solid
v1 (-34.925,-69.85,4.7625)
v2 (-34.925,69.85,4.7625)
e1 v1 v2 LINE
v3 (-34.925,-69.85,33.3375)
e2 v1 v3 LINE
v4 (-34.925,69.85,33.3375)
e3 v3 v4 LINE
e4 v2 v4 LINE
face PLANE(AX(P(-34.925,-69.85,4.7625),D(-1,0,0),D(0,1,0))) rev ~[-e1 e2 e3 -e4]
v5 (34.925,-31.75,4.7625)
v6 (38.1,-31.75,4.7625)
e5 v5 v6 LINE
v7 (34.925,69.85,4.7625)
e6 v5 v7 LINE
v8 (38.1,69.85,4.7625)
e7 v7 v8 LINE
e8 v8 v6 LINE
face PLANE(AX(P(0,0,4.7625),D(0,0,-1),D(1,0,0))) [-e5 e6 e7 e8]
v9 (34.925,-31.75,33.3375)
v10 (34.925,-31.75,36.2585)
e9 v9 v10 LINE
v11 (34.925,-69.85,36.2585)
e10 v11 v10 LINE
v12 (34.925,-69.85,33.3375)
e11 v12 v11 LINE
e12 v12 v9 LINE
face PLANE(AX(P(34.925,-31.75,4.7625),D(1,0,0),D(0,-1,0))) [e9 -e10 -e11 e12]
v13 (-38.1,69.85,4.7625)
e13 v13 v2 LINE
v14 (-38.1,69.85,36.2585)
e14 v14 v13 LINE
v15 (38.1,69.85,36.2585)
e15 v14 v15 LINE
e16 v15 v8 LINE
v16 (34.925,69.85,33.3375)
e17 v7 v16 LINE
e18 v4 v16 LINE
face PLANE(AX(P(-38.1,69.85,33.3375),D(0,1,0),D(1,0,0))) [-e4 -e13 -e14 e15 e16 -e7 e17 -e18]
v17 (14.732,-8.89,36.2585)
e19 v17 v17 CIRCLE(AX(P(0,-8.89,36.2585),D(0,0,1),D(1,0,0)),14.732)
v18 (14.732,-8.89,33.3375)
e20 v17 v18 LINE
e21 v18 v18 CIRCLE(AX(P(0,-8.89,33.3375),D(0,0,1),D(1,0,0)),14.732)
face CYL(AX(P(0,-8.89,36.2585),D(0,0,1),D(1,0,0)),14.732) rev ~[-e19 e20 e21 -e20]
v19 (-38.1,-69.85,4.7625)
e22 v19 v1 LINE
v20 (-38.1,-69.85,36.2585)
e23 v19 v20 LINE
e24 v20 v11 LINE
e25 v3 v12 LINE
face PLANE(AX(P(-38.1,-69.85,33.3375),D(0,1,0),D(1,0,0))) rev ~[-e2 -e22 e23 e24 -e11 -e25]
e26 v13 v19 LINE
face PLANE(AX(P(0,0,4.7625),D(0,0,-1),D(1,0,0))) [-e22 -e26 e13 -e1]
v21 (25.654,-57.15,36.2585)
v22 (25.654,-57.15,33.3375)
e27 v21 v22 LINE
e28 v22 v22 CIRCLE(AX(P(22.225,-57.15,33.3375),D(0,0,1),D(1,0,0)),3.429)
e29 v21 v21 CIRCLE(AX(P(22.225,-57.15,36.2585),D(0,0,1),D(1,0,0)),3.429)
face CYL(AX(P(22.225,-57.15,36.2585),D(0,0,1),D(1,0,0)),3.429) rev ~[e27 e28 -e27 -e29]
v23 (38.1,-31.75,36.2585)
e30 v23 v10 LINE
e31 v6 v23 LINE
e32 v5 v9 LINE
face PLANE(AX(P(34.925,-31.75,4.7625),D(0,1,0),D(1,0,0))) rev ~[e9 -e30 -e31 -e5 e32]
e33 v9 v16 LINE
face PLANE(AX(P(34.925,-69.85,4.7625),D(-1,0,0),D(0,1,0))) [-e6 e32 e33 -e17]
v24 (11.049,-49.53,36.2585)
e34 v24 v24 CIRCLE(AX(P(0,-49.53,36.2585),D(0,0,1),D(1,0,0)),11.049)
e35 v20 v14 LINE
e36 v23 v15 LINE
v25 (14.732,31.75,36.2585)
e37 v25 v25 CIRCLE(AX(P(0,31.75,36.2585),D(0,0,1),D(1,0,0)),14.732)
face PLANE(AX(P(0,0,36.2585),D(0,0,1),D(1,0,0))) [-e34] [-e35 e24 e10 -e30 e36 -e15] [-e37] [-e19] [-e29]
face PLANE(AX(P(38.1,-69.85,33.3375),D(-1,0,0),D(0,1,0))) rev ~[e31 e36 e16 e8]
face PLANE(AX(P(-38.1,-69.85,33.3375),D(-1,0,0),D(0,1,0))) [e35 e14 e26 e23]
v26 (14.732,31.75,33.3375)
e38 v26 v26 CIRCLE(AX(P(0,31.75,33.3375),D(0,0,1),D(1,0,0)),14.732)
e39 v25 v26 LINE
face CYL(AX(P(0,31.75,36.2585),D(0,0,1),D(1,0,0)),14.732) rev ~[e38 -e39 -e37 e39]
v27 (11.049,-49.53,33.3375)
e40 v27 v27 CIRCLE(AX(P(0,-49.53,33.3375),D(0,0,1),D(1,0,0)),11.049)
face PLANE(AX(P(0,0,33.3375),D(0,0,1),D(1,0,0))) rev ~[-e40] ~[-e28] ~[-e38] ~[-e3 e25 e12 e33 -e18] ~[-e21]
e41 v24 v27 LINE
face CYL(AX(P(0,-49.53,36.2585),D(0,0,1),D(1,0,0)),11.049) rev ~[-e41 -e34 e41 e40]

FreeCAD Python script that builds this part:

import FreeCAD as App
import Part
import Sketcher
from FreeCAD import Vector
Q = App.Units.Quantity

doc = App.newDocument("Part")
body = doc.addObject("PartDesign::Body", "Body")

# Sketch on XY plane
sketch1 = doc.addObject("Sketcher::SketchObject", "Sketch")
body.addObject(sketch1)
sketch1.AttachmentSupport = (doc.XY_Plane, [""])
sketch1.MapMode = "FlatFace"
sketch1.addGeometry([
    Part.LineSegment(Vector(-38, 70, 0), Vector(-38, -70, 0)),
    Part.LineSegment(Vector(-38, -70, 0), Vector(38, -70, 0)),
    Part.LineSegment(Vector(38, -70, 0), Vector(38, 70, 0)),
    Part.LineSegment(Vector(38, 70, 0), Vector(-38, 70, 0)),
], False)
sketch1.addConstraint([
    Sketcher.Constraint("Coincident", 0, 2, 1, 1),
    Sketcher.Constraint("Coincident", 1, 2, 2, 1),
    Sketcher.Constraint("Coincident", 2, 2, 3, 1),
    Sketcher.Constraint("Coincident", 3, 2, 0, 1),
    Sketcher.Constraint("Vertical", 0),
    Sketcher.Constraint("Horizontal", 1),
    Sketcher.Constraint("Vertical", 2),
    Sketcher.Constraint("Horizontal", 3),
    Sketcher.Constraint("Symmetric", 0, 2, 2, 2, -1, 1),
    Sketcher.Constraint("DistanceX", 1, 1, 1, 2, Q("3 in")),
    Sketcher.Constraint("DistanceY", 0, 2, 0, 1, Q("5.5 in")),
])
pad1 = doc.addObject("PartDesign::Pad", "Pad")
body.addObject(pad1)
pad1.Profile = sketch1
pad1.Length = Q("0.1875 in")

# Sketch on XY plane
sketch2 = doc.addObject("Sketcher::SketchObject", "Sketch001")
body.addObject(sketch2)
sketch2.AttachmentSupport = (doc.XY_Plane, [""])
sketch2.MapMode = "FlatFace"
sketch2.AttachmentOffset = App.Placement(Vector(0, 0, 0.1875 * 25.4), App.Rotation())
sketch2.addGeometry([
    Part.LineSegment(Vector(-38.1, 69.8, 0), Vector(-38.1, -69.8, 0)),  # 0
    Part.LineSegment(Vector(-38.1, -69.8, 0), Vector(-34.9, -69.8, 0)),  # 1
    Part.LineSegment(Vector(-34.9, -69.8, 0), Vector(-34.9, 69.8, 0)),  # 2
    Part.LineSegment(Vector(-34.9, 69.8, 0), Vector(-38.1, 69.8, 0)),  # 3
    Part.LineSegment(Vector(34.9, 69.8, 0), Vector(34.9, -69.8, 0)),  # 4
    Part.LineSegment(Vector(34.9, -69.8, 0), Vector(38.1, -69.8, 0)),  # 5
    Part.LineSegment(Vector(38.1, -69.8, 0), Vector(38.1, 69.8, 0)),  # 6
    Part.LineSegment(Vector(38.1, 69.8, 0), Vector(34.9, 69.8, 0)),  # 7
], False)
sketch2.addConstraint([
    Sketcher.Constraint("Coincident", 0, 2, 1, 1),
    Sketcher.Constraint("Coincident", 1, 2, 2, 1),
    Sketcher.Constraint("Coincident", 2, 2, 3, 1),
    Sketcher.Constraint("Coincident", 3, 2, 0, 1),
    Sketcher.Constraint("Coincident", 4, 2, 5, 1),
    Sketcher.Constraint("Coincident", 5, 2, 6, 1),
    Sketcher.Constraint("Coincident", 6, 2, 7, 1),
    Sketcher.Constraint("Coincident", 7, 2, 4, 1),
    Sketcher.Constraint("Vertical", 0),
    Sketcher.Constraint("Horizontal", 1),
    Sketcher.Constraint("Vertical", 2),
    Sketcher.Constraint("Horizontal", 3),
    Sketcher.Constraint("Vertical", 4),
    Sketcher.Constraint("Horizontal", 5),
    Sketcher.Constraint("Vertical", 6),
    Sketcher.Constraint("Horizontal", 7),
    Sketcher.Constraint("Symmetric", 2, 2, 4, 2, -1, 1),
    Sketcher.Constraint("Symmetric", 0, 2, 6, 2, -1, 1),
    Sketcher.Constraint("Horizontal", 1, 2, 4, 2),
    Sketcher.Constraint("DistanceY", 0, 2, 0, 1, Q("5.5 in")),
    Sketcher.Constraint("DistanceX", 0, 2, 5, 2, Q("3 in")),
    Sketcher.Constraint("DistanceX", 1, 1, 1, 2, Q("0.125 in")),
])
pad2 = doc.addObject("PartDesign::Pad", "Pad001")
body.addObject(pad2)
pad2.Profile = sketch2
pad2.Length = Q("1.125 in")

# Sketch on XY plane
sketch3 = doc.addObject("Sketcher::SketchObject", "Sketch002")
body.addObject(sketch3)
sketch3.AttachmentSupport = (doc.XY_Plane, [""])
sketch3.MapMode = "FlatFace"
sketch3.AttachmentOffset = App.Placement(Vector(0, 0, 1.3125 * 25.4), App.Rotation())
sketch3.addGeometry([
    Part.LineSegment(Vector(-38, 70, 0), Vector(-38, -70, 0)),
    Part.LineSegment(Vector(-38, -70, 0), Vector(38, -70, 0)),
    Part.LineSegment(Vector(38, -70, 0), Vector(38, 70, 0)),
    Part.LineSegment(Vector(38, 70, 0), Vector(-38, 70, 0)),
], False)
sketch3.addConstraint([
    Sketcher.Constraint("Coincident", 0, 2, 1, 1),
    Sketcher.Constraint("Coincident", 1, 2, 2, 1),
    Sketcher.Constraint("Coincident", 2, 2, 3, 1),
    Sketcher.Constraint("Coincident", 3, 2, 0, 1),
    Sketcher.Constraint("Vertical", 0),
    Sketcher.Constraint("Horizontal", 1),
    Sketcher.Constraint("Vertical", 2),
    Sketcher.Constraint("Horizontal", 3),
    Sketcher.Constraint("Symmetric", 0, 2, 2, 2, -1, 1),
    Sketcher.Constraint("DistanceX", 1, 1, 1, 2, Q("3 in")),
    Sketcher.Constraint("DistanceY", 0, 2, 0, 1, Q("5.5 in")),
])
pad3 = doc.addObject("PartDesign::Pad", "Pad002")
body.addObject(pad3)
pad3.Profile = sketch3
pad3.Length = Q("0.115 in")

# Sketch on XY plane
sketch4 = doc.addObject("Sketcher::SketchObject", "Sketch003")
body.addObject(sketch4)
sketch4.AttachmentSupport = (doc.XY_Plane, [""])
sketch4.MapMode = "FlatFace"
sketch4.AttachmentOffset = App.Placement(Vector(0, 0, 1.4275 * 25.4), App.Rotation())
sketch4.addGeometry([
    Part.Circle(Vector(0, -9, 0), Vector(0, 0, 1), 12),
    Part.Circle(Vector(0, -50, 0), Vector(0, 0, 1), 11),
], False)
sketch4.addConstraint([
    Sketcher.Constraint("PointOnObject", 0, 3, -2),
    Sketcher.Constraint("PointOnObject", 1, 3, -2),
    Sketcher.Constraint("Diameter", 0, Q("0.92 in")),
    Sketcher.Constraint("Diameter", 1, Q("0.87 in")),
    Sketcher.Constraint("DistanceY", 1, 3, 0, 3, Q("1.6 in")),
    Sketcher.Constraint("DistanceY", 0, 3, -1, 1, Q("0.35 in")),
])
pocket1 = doc.addObject("PartDesign::Pocket", "Pocket")
body.addObject(pocket1)
pocket1.Profile = sketch4
pocket1.Length = Q("3 in")

# Sketch on XY plane
sketch5 = doc.addObject("Sketcher::SketchObject", "Sketch004")
body.addObject(sketch5)
sketch5.AttachmentSupport = (doc.XY_Plane, [""])
sketch5.MapMode = "FlatFace"
sketch5.AttachmentOffset = App.Placement(Vector(0, 0, 1.4275 * 25.4), App.Rotation())
sketch5.addGeometry(Part.Circle(Vector(0, 32, 0), Vector(0, 0, 1), 15), False)
sketch5.addConstraint([
    Sketcher.Constraint("PointOnObject", 0, 3, -2),
    Sketcher.Constraint("Diameter", 0, Q("1.16 in")),
    Sketcher.Constraint("DistanceY", -1, 1, 0, 3, Q("1.25 in")),
])
pocket2 = doc.addObject("PartDesign::Pocket", "Pocket001")
body.addObject(pocket2)
pocket2.Profile = sketch5
pocket2.Length = Q("1 in")

# Sketch on XY plane
sketch6 = doc.addObject("Sketcher::SketchObject", "Sketch005")
body.addObject(sketch6)
sketch6.AttachmentSupport = (doc.XY_Plane, [""])
sketch6.MapMode = "FlatFace"
sketch6.addGeometry(Part.Circle(Vector(0, 34, 0), Vector(0, 0, 1), 11), False)
sketch6.addConstraint([
    Sketcher.Constraint("PointOnObject", 0, 3, -2),
    Sketcher.Constraint("Diameter", 0, Q("0.9 in")),
    Sketcher.Constraint("DistanceY", -1, 1, 0, 3, Q("1.35 in")),
])
pocket3 = doc.addObject("PartDesign::Pocket", "Pocket002")
body.addObject(pocket3)
pocket3.Profile = sketch6
pocket3.Length = Q("1 in")
pocket3.Reversed = True

# Sketch on XY plane
sketch7 = doc.addObject("Sketcher::SketchObject", "Sketch006")
body.addObject(sketch7)
sketch7.AttachmentSupport = (doc.XY_Plane, [""])
sketch7.MapMode = "FlatFace"
sketch7.addGeometry([
    Part.LineSegment(Vector(-38, -70, 0), Vector(-38, 70, 0)),
    Part.LineSegment(Vector(-38, 70, 0), Vector(38, 70, 0)),
    Part.LineSegment(Vector(38, 70, 0), Vector(38, -70, 0)),
    Part.LineSegment(Vector(38, -70, 0), Vector(-38, -70, 0)),
], False)
sketch7.addConstraint([
    Sketcher.Constraint("Coincident", 0, 2, 1, 1),
    Sketcher.Constraint("Coincident", 1, 2, 2, 1),
    Sketcher.Constraint("Coincident", 2, 2, 3, 1),
    Sketcher.Constraint("Coincident", 3, 2, 0, 1),
    Sketcher.Constraint("Vertical", 0),
    Sketcher.Constraint("Horizontal", 1),
    Sketcher.Constraint("Vertical", 2),
    Sketcher.Constraint("Horizontal", 3),
    Sketcher.Constraint("Symmetric", 0, 2, 2, 2, -1, 1),
    Sketcher.Constraint("DistanceX", 1, 1, 1, 2, Q("3 in")),
    Sketcher.Constraint("DistanceY", 0, 1, 0, 2, Q("5.5 in")),
])
pocket4 = doc.addObject("PartDesign::Pocket", "Pocket003")
body.addObject(pocket4)
pocket4.Profile = sketch7
pocket4.Length = Q("0.1875 in")
pocket4.Reversed = True

# Sketch on XY plane
sketch8 = doc.addObject("Sketcher::SketchObject", "Sketch007")
body.addObject(sketch8)
sketch8.AttachmentSupport = (doc.XY_Plane, [""])
sketch8.MapMode = "FlatFace"
sketch8.AttachmentOffset = App.Placement(Vector(0, 0, 1.4275 * 25.4), App.Rotation())
sketch8.addGeometry(Part.Circle(Vector(0, -9, 0), Vector(0, 0, 1), 15), False)
sketch8.addConstraint([
    Sketcher.Constraint("PointOnObject", 0, 3, -2),
    Sketcher.Constraint("Diameter", 0, Q("1.16 in")),
    Sketcher.Constraint("DistanceY", 0, 3, -1, 1, Q("0.35 in")),
])
pocket5 = doc.addObject("PartDesign::Pocket", "Pocket004")
body.addObject(pocket5)
pocket5.Profile = sketch8
pocket5.Length = Q("1 in")

# Sketch on XY plane
sketch9 = doc.addObject("Sketcher::SketchObject", "Sketch008")
body.addObject(sketch9)
sketch9.AttachmentSupport = (doc.XY_Plane, [""])
sketch9.MapMode = "FlatFace"
sketch9.AttachmentOffset = App.Placement(Vector(0, 0, 0.1875 * 25.4), App.Rotation())
sketch9.addGeometry([
    Part.LineSegment(Vector(34.9, -69.8, 0), Vector(34.9, -31.8, 0)),
    Part.LineSegment(Vector(34.9, -31.8, 0), Vector(38.1, -31.8, 0)),
    Part.LineSegment(Vector(38.1, -31.8, 0), Vector(38.1, -69.8, 0)),
    Part.LineSegment(Vector(38.1, -69.8, 0), Vector(34.9, -69.8, 0)),
], False)
sketch9.addConstraint([
    Sketcher.Constraint("Coincident", 0, 2, 1, 1),
    Sketcher.Constraint("Coincident", 1, 2, 2, 1),
    Sketcher.Constraint("Coincident", 2, 2, 3, 1),
    Sketcher.Constraint("Coincident", 3, 2, 0, 1),
    Sketcher.Constraint("Vertical", 0),
    Sketcher.Constraint("Horizontal", 1),
    Sketcher.Constraint("Vertical", 2),
    Sketcher.Constraint("Horizontal", 3),
    Sketcher.Constraint("DistanceY", 0, 1, 0, 2, Q("1.5 in")),
    Sketcher.Constraint("DistanceX", -1, 1, 1, 2, Q("1.5 in")),
    Sketcher.Constraint("DistanceX", 1, 1, 1, 2, Q("0.125 in")),
    Sketcher.Constraint("DistanceY", 0, 2, -1, 1, Q("1.25 in")),
])
pocket6 = doc.addObject("PartDesign::Pocket", "Pocket005")
body.addObject(pocket6)
pocket6.Profile = sketch9
pocket6.Length = 49.04312
pocket6.Reversed = True

# Sketch on XY plane
sketch10 = doc.addObject("Sketcher::SketchObject", "Sketch009")
body.addObject(sketch10)
sketch10.AttachmentSupport = (doc.XY_Plane, [""])
sketch10.MapMode = "FlatFace"
sketch10.AttachmentOffset = App.Placement(Vector(0, 0, 1.4275 * 25.4), App.Rotation())
sketch10.addGeometry(Part.Circle(Vector(22.2, -57.1, 0), Vector(0, 0, 1), 3.4), False)
sketch10.addConstraint([
    Sketcher.Constraint("Diameter", 0, Q("0.27 in")),
    Sketcher.Constraint("DistanceY", 0, 3, -1, 1, Q("2.25 in")),
    Sketcher.Constraint("DistanceX", -1, 1, 0, 3, Q("0.875 in")),
])
pocket7 = doc.addObject("PartDesign::Pocket", "Pocket006")
body.addObject(pocket7)
pocket7.Profile = sketch10
pocket7.Length = Q("1 in")

doc.recompute()
